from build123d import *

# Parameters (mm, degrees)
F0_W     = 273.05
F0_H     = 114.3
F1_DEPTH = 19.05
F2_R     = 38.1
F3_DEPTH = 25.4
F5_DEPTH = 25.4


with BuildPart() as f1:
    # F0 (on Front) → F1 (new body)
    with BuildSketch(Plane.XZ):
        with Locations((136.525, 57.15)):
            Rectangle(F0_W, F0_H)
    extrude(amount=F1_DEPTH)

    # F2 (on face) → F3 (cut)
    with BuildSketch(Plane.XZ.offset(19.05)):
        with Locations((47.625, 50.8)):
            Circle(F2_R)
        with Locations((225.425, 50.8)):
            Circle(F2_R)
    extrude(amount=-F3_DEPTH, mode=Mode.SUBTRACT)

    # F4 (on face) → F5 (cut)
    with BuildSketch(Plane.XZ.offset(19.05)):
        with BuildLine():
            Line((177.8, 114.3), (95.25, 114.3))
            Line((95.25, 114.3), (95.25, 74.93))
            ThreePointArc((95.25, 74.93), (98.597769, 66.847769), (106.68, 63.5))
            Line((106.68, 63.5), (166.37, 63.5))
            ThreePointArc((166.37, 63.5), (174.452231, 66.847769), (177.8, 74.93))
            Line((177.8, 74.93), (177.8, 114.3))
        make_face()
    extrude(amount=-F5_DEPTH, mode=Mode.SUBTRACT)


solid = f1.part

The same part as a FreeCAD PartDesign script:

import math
import FreeCAD as App
import Part
import Sketcher
from FreeCAD import Vector
Q = App.Units.Quantity

doc = App.newDocument("Part")
body = doc.addObject("PartDesign::Body", "Body")

# Sketch on XZ plane
sketch1 = body.newObject("Sketcher::SketchObject", "Sketch")
sketch1.AttachmentSupport = (doc.getObject("XZ_Plane"), [""])
sketch1.MapMode = "FlatFace"
sketch1.addGeometry([
    Part.LineSegment(Vector(0, 114, 0), Vector(0, 0, 0)),
    Part.LineSegment(Vector(0, 0, 0), Vector(273, 0, 0)),
    Part.LineSegment(Vector(273, 0, 0), Vector(273, 114, 0)),
    Part.LineSegment(Vector(273, 114, 0), Vector(0, 114, 0)),
], False)
sketch1.addConstraint([
    Sketcher.Constraint("Coincident", 0, 2, 1, 1),
    Sketcher.Constraint("Coincident", 1, 2, 2, 1),
    Sketcher.Constraint("Coincident", 2, 2, 3, 1),
    Sketcher.Constraint("Coincident", 3, 2, 0, 1),
    Sketcher.Constraint("Vertical", 0),
    Sketcher.Constraint("Horizontal", 1),
    Sketcher.Constraint("Vertical", 2),
    Sketcher.Constraint("Horizontal", 3),
    Sketcher.Constraint("Coincident", 0, 2, -1, 1),
    Sketcher.Constraint("DistanceY", 0, 2, 0, 1, Q("4.5 in")),
    Sketcher.Constraint("DistanceX", 1, 1, 1, 2, Q("10.75 in")),
])
pad1 = body.newObject("PartDesign::Pad", "Pad")
pad1.Profile = sketch1
pad1.Length = Q("0.75 in")

# Sketch on XZ plane
sketch2 = body.newObject("Sketcher::SketchObject", "Sketch001")
sketch2.AttachmentSupport = (doc.getObject("XZ_Plane"), [""])
sketch2.MapMode = "FlatFace"
sketch2.AttachmentOffset = App.Placement(Vector(0, 0, 0.75 * 25.4), App.Rotation())
sketch2.addGeometry([
    Part.Circle(Vector(48, 51, 0), Vector(0, 0, 1), 38),
    Part.Circle(Vector(225, 51, 0), Vector(0, 0, 1), 38),
], False)
sketch2.addConstraint([
    Sketcher.Constraint("Equal", 0, 1),
    Sketcher.Constraint("Horizontal", 0, 3, 1, 3),
    Sketcher.Constraint("Diameter", 0, Q("3 in")),
    Sketcher.Constraint("DistanceY", -1, 1, 0, 3, Q("2 in")),
    Sketcher.Constraint("DistanceX", 0, 3, 1, 3, Q("7 in")),
    Sketcher.Constraint("DistanceX", -1, 1, 0, 3, Q("1.875 in")),
])
pocket1 = body.newObject("PartDesign::Pocket", "Pocket")
pocket1.Profile = sketch2
pocket1.Length = Q("1 in")

# Sketch on XZ plane
sketch3 = body.newObject("Sketcher::SketchObject", "Sketch002")
sketch3.AttachmentSupport = (doc.getObject("XZ_Plane"), [""])
sketch3.MapMode = "FlatFace"
sketch3.AttachmentOffset = App.Placement(Vector(0, 0, 0.75 * 25.4), App.Rotation())
sketch3.addGeometry([
    Part.LineSegment(Vector(178, 114, 0), Vector(95, 114, 0)),  # 0
    Part.LineSegment(Vector(95, 114, 0), Vector(95, 75, 0)),  # 1
    Part.ArcOfCircle(Part.Circle(Vector(107, 75, 0), Vector(0, 0, 1), 11), math.radians(180), math.radians(270)),  # 2
    Part.LineSegment(Vector(107, 64, 0), Vector(166, 64, 0)),  # 3
    Part.ArcOfCircle(Part.Circle(Vector(166, 75, 0), Vector(0, 0, 1), 11), math.radians(-90), math.radians(0)),  # 4
    Part.LineSegment(Vector(178, 75, 0), Vector(178, 114, 0)),  # 5
], False)
sketch3.addConstraint([
    Sketcher.Constraint("Coincident", 0, 2, 1, 1),
    Sketcher.Constraint("Tangent", 1, 2, 2, 1),
    Sketcher.Constraint("Tangent", 2, 2, 3, 1),
    Sketcher.Constraint("Tangent", 3, 2, 4, 1),
    Sketcher.Constraint("Tangent", 4, 2, 5, 1),
    Sketcher.Constraint("Coincident", 5, 2, 0, 1),
    Sketcher.Constraint("Horizontal", 0),
    Sketcher.Constraint("Vertical", 1),
    Sketcher.Constraint("Horizontal", 3),
    Sketcher.Constraint("Vertical", 5),
    Sketcher.Constraint("Equal", 2, 4),
    Sketcher.Constraint("Radius", 2, Q("0.4499999 in")),
    Sketcher.Constraint("DistanceX", -1, 1, 4, 2, Q("7 in")),
    Sketcher.Constraint("DistanceY", 2, 2, 0, 2, Q("2 in")),
    Sketcher.Constraint("DistanceX", 0, 2, 0, 1, Q("3.25 in")),
    Sketcher.Constraint("DistanceY", -1, 1, 0, 2, Q("4.5 in")),
])
pocket2 = body.newObject("PartDesign::Pocket", "Pocket001")
pocket2.Profile = sketch3
pocket2.Length = Q("1 in")

doc.recompute()
